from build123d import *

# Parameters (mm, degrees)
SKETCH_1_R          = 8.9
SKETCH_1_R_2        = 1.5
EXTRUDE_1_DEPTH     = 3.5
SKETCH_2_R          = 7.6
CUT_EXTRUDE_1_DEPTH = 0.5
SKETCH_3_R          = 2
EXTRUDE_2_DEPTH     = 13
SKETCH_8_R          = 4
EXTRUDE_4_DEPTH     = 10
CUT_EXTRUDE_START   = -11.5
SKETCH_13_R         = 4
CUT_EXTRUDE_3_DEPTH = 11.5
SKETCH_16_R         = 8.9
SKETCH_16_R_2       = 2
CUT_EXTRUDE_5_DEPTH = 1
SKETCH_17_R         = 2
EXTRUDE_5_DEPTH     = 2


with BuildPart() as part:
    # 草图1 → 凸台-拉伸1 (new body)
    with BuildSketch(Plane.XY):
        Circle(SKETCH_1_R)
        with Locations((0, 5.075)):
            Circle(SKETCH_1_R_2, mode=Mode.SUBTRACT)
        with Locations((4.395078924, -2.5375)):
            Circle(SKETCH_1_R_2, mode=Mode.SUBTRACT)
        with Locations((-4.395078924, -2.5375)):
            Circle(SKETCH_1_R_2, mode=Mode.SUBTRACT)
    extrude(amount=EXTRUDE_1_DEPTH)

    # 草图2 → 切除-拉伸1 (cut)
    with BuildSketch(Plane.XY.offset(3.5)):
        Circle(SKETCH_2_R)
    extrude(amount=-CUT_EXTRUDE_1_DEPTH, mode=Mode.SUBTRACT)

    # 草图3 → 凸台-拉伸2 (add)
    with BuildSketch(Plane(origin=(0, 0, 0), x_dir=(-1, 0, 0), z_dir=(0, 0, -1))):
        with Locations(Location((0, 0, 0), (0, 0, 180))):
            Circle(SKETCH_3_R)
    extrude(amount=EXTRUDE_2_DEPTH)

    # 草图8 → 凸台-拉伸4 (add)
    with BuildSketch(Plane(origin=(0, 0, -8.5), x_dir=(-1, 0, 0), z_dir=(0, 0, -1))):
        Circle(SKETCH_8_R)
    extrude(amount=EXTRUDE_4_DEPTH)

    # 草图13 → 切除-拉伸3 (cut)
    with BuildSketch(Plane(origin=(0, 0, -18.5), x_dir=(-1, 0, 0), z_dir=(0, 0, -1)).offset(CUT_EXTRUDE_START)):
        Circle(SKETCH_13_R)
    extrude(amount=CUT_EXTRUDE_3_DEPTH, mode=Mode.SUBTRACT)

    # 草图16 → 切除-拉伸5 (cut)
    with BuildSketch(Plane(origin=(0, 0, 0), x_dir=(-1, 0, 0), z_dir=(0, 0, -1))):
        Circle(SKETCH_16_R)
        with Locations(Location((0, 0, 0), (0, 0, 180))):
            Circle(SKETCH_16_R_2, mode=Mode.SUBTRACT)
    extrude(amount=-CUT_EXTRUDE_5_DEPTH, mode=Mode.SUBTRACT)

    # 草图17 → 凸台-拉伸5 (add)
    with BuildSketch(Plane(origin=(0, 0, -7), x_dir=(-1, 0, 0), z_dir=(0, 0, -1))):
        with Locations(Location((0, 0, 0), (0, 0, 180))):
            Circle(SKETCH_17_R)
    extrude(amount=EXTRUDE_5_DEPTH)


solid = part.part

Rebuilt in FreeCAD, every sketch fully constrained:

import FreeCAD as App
import Part
import Sketcher
from FreeCAD import Vector

doc = App.newDocument("Part")
params = doc.addObject("Spreadsheet::Sheet", "Params")
for row, (alias, value) in enumerate([
    ("sketch1_diameter", "3 mm"),
    ("sketch1_diameter2", "17.8 mm"),
    ("pad1_length", "3.5 mm"),
    ("sketch2_diameter", "15.2 mm"),
    ("pocket1_length", "0.5 mm"),
    ("sketch3_diameter", "4 mm"),
    ("pad2_length", "13 mm"),
    ("sketch4_diameter", "8 mm"),
    ("pad3_length", "10 mm"),
    ("sketch5_diameter", "8 mm"),
    ("pocket2_length", "11.5 mm"),
    ("sketch6_diameter", "4 mm"),
    ("sketch6_diameter2", "17.8 mm"),
    ("pocket3_length", "1 mm"),
    ("sketch7_diameter", "4 mm"),
    ("pad4_length", "2 mm"),
], start=1):
    params.set(f"A{row}", alias)
    params.set(f"B{row}", "=" + value)
    params.setAlias(f"B{row}", alias)

body = doc.addObject("PartDesign::Body", "Body")

# Sketch on XY plane
sketch1 = doc.addObject("Sketcher::SketchObject", "Sketch")
body.addObject(sketch1)
sketch1.AttachmentSupport = (doc.XY_Plane, [""])
sketch1.MapMode = "FlatFace"
sketch1.addGeometry(Part.Circle(Vector(0, 0, 0), Vector(0, 0, 1), 8.9), False)
sketch1.addGeometry(Part.Circle(Vector(-4.4, -2.5, 0), Vector(0, 0, 1), 1.5), False)
sketch1.addGeometry(Part.Circle(Vector(4.4, -2.5, 0), Vector(0, 0, 1), 1.5), False)
sketch1.addGeometry(Part.Circle(Vector(0, 5.1, 0), Vector(0, 0, 1), 1.5), False)
sketch1.addConstraint(Sketcher.Constraint("Coincident", 0, 3, -1, 1))
sketch1.addConstraint(Sketcher.Constraint("Equal", 1, 2))
sketch1.addConstraint(Sketcher.Constraint("Equal", 2, 3))
sketch1.addConstraint(Sketcher.Constraint("Symmetric", 1, 3, 2, 3, -2))
sketch1.addConstraint(Sketcher.Constraint("PointOnObject", 3, 3, -2))
sketch1.addConstraint(Sketcher.Constraint("Diameter", 1, 3.0))
sketch1.addConstraint(Sketcher.Constraint("Diameter", 0, 17.8))
sketch1.addConstraint(Sketcher.Constraint("DistanceY", -1, 1, 3, 3, 5.075))
sketch1.addConstraint(Sketcher.Constraint("DistanceY", 1, 3, -1, 1, 2.5375))
sketch1.addConstraint(Sketcher.Constraint("DistanceX", 1, 3, -1, 1, 4.395079))
sketch1.setExpression("Constraints[5]", "Params.sketch1_diameter")
sketch1.setExpression("Constraints[6]", "Params.sketch1_diameter2")
pad1 = doc.addObject("PartDesign::Pad", "Pad")
body.addObject(pad1)
pad1.Profile = sketch1
pad1.setExpression("Length", "Params.pad1_length")

# Sketch on XY plane
sketch2 = doc.addObject("Sketcher::SketchObject", "Sketch001")
body.addObject(sketch2)
sketch2.AttachmentSupport = (doc.XY_Plane, [""])
sketch2.MapMode = "FlatFace"
sketch2.AttachmentOffset = App.Placement(Vector(0, 0, 3.5), App.Rotation())
sketch2.addGeometry(Part.Circle(Vector(0, 0, 0), Vector(0, 0, 1), 8), False)
sketch2.addConstraint(Sketcher.Constraint("Coincident", 0, 3, -1, 1))
sketch2.addConstraint(Sketcher.Constraint("Diameter", 0, 15.2))
sketch2.setExpression("Constraints[1]", "Params.sketch2_diameter")
pocket1 = doc.addObject("PartDesign::Pocket", "Pocket")
body.addObject(pocket1)
pocket1.Profile = sketch2
pocket1.setExpression("Length", "Params.pocket1_length")

# Sketch on XY plane
sketch3 = doc.addObject("Sketcher::SketchObject", "Sketch002")
body.addObject(sketch3)
sketch3.AttachmentSupport = (doc.XY_Plane, [""])
sketch3.MapMode = "FlatFace"
sketch3.addGeometry(Part.Circle(Vector(0, 0, 0), Vector(0, 0, 1), 2), False)
sketch3.addConstraint(Sketcher.Constraint("Coincident", 0, 3, -1, 1))
sketch3.addConstraint(Sketcher.Constraint("Diameter", 0, 4.0))
sketch3.setExpression("Constraints[1]", "Params.sketch3_diameter")
pad2 = doc.addObject("PartDesign::Pad", "Pad001")
body.addObject(pad2)
pad2.Profile = sketch3
pad2.setExpression("Length", "Params.pad2_length")
pad2.Reversed = True

# Sketch on XY plane
sketch4 = doc.addObject("Sketcher::SketchObject", "Sketch003")
body.addObject(sketch4)
sketch4.AttachmentSupport = (doc.XY_Plane, [""])
sketch4.MapMode = "FlatFace"
sketch4.AttachmentOffset = App.Placement(Vector(0, 0, -8.5), App.Rotation())
sketch4.addGeometry(Part.Circle(Vector(0, 0, 0), Vector(0, 0, 1), 4), False)
sketch4.addConstraint(Sketcher.Constraint("Coincident", 0, 3, -1, 1))
sketch4.addConstraint(Sketcher.Constraint("Diameter", 0, 8.0))
sketch4.setExpression("Constraints[1]", "Params.sketch4_diameter")
pad3 = doc.addObject("PartDesign::Pad", "Pad002")
body.addObject(pad3)
pad3.Profile = sketch4
pad3.setExpression("Length", "Params.pad3_length")
pad3.Reversed = True

# Sketch on XY plane
sketch5 = doc.addObject("Sketcher::SketchObject", "Sketch004")
body.addObject(sketch5)
sketch5.AttachmentSupport = (doc.XY_Plane, [""])
sketch5.MapMode = "FlatFace"
sketch5.AttachmentOffset = App.Placement(Vector(0, 0, -7), App.Rotation())
sketch5.addGeometry(Part.Circle(Vector(0, 0, 0), Vector(0, 0, 1), 4), False)
sketch5.addConstraint(Sketcher.Constraint("Coincident", 0, 3, -1, 1))
sketch5.addConstraint(Sketcher.Constraint("Diameter", 0, 8.0))
sketch5.setExpression("Constraints[1]", "Params.sketch5_diameter")
pocket2 = doc.addObject("PartDesign::Pocket", "Pocket001")
body.addObject(pocket2)
pocket2.Profile = sketch5
pocket2.setExpression("Length", "Params.pocket2_length")

# Sketch on XY plane
sketch6 = doc.addObject("Sketcher::SketchObject", "Sketch005")
body.addObject(sketch6)
sketch6.AttachmentSupport = (doc.XY_Plane, [""])
sketch6.MapMode = "FlatFace"
sketch6.addGeometry(Part.Circle(Vector(0, 0, 0), Vector(0, 0, 1), 8.9), False)
sketch6.addGeometry(Part.Circle(Vector(0, 0, 0), Vector(0, 0, 1), 2), False)
sketch6.addConstraint(Sketcher.Constraint("Coincident", 0, 3, -1, 1))
sketch6.addConstraint(Sketcher.Constraint("Coincident", 1, 3, -1, 1))
sketch6.addConstraint(Sketcher.Constraint("Diameter", 1, 4.0))
sketch6.addConstraint(Sketcher.Constraint("Diameter", 0, 17.8))
sketch6.setExpression("Constraints[2]", "Params.sketch6_diameter")
sketch6.setExpression("Constraints[3]", "Params.sketch6_diameter2")
pocket3 = doc.addObject("PartDesign::Pocket", "Pocket002")
body.addObject(pocket3)
pocket3.Profile = sketch6
pocket3.setExpression("Length", "Params.pocket3_length")
pocket3.Reversed = True

# Sketch on XY plane
sketch7 = doc.addObject("Sketcher::SketchObject", "Sketch006")
body.addObject(sketch7)
sketch7.AttachmentSupport = (doc.XY_Plane, [""])
sketch7.MapMode = "FlatFace"
sketch7.AttachmentOffset = App.Placement(Vector(0, 0, -7), App.Rotation())
sketch7.addGeometry(Part.Circle(Vector(0, 0, 0), Vector(0, 0, 1), 2), False)
sketch7.addConstraint(Sketcher.Constraint("Coincident", 0, 3, -1, 1))
sketch7.addConstraint(Sketcher.Constraint("Diameter", 0, 4.0))
sketch7.setExpression("Constraints[1]", "Params.sketch7_diameter")
pad4 = doc.addObject("PartDesign::Pad", "Pad003")
body.addObject(pad4)
pad4.Profile = sketch7
pad4.setExpression("Length", "Params.pad4_length")
pad4.Reversed = True

doc.recompute()
